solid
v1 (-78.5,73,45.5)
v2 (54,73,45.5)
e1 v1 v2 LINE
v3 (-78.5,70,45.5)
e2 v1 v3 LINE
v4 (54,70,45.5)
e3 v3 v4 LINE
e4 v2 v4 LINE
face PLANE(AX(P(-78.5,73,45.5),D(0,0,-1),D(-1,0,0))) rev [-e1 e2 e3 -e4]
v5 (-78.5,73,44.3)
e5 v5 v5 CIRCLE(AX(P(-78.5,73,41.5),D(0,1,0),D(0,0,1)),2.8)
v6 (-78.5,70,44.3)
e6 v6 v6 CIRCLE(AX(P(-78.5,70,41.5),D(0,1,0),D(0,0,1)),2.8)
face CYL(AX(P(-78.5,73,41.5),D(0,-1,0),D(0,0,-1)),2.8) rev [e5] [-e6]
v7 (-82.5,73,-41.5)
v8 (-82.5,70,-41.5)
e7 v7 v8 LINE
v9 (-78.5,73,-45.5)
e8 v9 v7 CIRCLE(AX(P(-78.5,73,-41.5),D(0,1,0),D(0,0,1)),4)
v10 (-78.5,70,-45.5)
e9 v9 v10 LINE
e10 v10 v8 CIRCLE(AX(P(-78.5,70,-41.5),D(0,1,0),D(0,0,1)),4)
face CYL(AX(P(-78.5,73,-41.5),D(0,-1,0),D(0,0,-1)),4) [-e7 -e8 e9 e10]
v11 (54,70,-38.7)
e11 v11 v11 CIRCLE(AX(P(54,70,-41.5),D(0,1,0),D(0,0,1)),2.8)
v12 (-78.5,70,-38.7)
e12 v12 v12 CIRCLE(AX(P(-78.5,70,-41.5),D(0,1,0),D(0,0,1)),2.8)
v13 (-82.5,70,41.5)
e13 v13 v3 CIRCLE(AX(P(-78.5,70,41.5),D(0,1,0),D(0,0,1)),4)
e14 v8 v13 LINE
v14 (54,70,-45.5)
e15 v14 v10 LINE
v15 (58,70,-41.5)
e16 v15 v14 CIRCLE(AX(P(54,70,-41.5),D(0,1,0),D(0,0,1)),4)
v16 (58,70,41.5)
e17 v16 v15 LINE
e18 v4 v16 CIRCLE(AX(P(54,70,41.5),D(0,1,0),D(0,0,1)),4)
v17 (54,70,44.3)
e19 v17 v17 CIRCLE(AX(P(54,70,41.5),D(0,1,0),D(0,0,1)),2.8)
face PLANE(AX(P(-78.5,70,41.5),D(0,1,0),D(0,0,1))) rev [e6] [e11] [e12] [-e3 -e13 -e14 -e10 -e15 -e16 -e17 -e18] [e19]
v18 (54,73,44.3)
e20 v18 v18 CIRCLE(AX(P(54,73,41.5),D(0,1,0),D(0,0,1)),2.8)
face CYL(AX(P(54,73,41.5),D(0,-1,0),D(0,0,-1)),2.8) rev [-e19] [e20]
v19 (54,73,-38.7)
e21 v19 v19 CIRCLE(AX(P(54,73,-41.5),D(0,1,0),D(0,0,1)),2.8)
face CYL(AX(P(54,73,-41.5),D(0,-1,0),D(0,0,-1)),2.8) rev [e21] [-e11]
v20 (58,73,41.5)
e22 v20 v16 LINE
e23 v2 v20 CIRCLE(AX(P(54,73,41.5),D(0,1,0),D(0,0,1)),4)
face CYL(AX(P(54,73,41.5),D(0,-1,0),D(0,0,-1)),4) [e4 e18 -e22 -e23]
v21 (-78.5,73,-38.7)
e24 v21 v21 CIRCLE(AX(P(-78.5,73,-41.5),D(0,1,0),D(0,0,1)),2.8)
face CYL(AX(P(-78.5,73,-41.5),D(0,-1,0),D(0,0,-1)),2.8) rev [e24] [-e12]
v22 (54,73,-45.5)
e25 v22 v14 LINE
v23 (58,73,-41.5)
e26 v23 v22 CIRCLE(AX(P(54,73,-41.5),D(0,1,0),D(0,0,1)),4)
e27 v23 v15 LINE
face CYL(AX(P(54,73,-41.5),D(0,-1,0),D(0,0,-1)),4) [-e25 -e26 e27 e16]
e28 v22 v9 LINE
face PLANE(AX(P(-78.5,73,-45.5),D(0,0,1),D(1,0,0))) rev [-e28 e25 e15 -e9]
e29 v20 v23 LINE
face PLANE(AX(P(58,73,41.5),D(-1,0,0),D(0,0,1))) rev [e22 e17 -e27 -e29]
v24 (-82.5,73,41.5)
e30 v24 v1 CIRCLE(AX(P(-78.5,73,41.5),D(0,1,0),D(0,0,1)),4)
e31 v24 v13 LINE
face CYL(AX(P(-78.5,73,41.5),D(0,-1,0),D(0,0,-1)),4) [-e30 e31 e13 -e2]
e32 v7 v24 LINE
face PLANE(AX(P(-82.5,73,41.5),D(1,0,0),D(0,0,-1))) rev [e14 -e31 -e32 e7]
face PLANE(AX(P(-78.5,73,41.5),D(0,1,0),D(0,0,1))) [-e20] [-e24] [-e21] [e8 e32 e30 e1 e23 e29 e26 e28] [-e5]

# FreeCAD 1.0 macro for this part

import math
import FreeCAD as App
import Part
import Sketcher
from FreeCAD import Vector
Q = App.Units.Quantity


def edges_at(feature, points):
    """Names of the edges that pass closest to the given points."""
    edges = feature.Shape.Edges
    near = lambda p: min(range(len(edges)), key=lambda i: edges[i].distToShape(Part.Vertex(*p))[0])
    return sorted({f"Edge{near(p) + 1}" for p in points})

doc = App.newDocument("Part")
body = doc.addObject("PartDesign::Body", "Body")

sketch1 = body.newObject("Sketcher::SketchObject", "Sketch")
sketch1.AttachmentSupport = (doc.getObject("XZ_Plane"), [""])
sketch1.MapMode = "FlatFace"
sketch1.addGeometry([
    Part.LineSegment(Vector(-80, -42, 0), Vector(-80, 42, 0)),
    Part.LineSegment(Vector(-80, 42, 0), Vector(55, 42, 0)),
    Part.LineSegment(Vector(55, 42, 0), Vector(55, -42, 0)),
    Part.LineSegment(Vector(55, -42, 0), Vector(-80, -42, 0)),
], False)
sketch1.addConstraint([
    Sketcher.Constraint("Coincident", 0, 2, 1, 1),
    Sketcher.Constraint("Coincident", 1, 2, 2, 1),
    Sketcher.Constraint("Coincident", 2, 2, 3, 1),
    Sketcher.Constraint("Coincident", 3, 2, 0, 1),
    Sketcher.Constraint("Vertical", 0),
    Sketcher.Constraint("Horizontal", 1),
    Sketcher.Constraint("Vertical", 2),
    Sketcher.Constraint("Horizontal", 3),
    Sketcher.Constraint("DistanceY", 0, 1, 0, 2, Q("85 mm")),
    Sketcher.Constraint("DistanceX", 1, 1, 1, 2, Q("134.5 mm")),
    Sketcher.Constraint("DistanceX", -1, 1, 1, 2, Q("55 mm")),
    Sketcher.Constraint("DistanceY", -1, 1, 0, 2, Q("42.5 mm")),
])
pad1 = body.newObject("PartDesign::Pad", "Pad")
pad1.Profile = sketch1
pad1.Length = 3
pad1.Reversed = True

sketch2 = body.newObject("Sketcher::SketchObject", "Sketch001")
sketch2.AttachmentSupport = (doc.getObject("XZ_Plane"), [""])
sketch2.MapMode = "FlatFace"
sketch2.addGeometry([
    Part.LineSegment(Vector(-82, -46, 0), Vector(-82, 46, 0)),
    Part.LineSegment(Vector(-82, 46, 0), Vector(58, 46, 0)),
    Part.LineSegment(Vector(58, 46, 0), Vector(58, -46, 0)),
    Part.LineSegment(Vector(58, -46, 0), Vector(-82, -46, 0)),
    Part.LineSegment(Vector(55, 42, 0), Vector(-80, 42, 0)),
    Part.LineSegment(Vector(-80, 42, 0), Vector(-80, -42, 0)),
    Part.LineSegment(Vector(-80, -42, 0), Vector(55, -42, 0)),
    Part.LineSegment(Vector(55, -42, 0), Vector(55, 42, 0)),
], False)
sketch2.addConstraint([
    Sketcher.Constraint("Coincident", 0, 2, 1, 1),
    Sketcher.Constraint("Coincident", 1, 2, 2, 1),
    Sketcher.Constraint("Coincident", 2, 2, 3, 1),
    Sketcher.Constraint("Coincident", 3, 2, 0, 1),
    Sketcher.Constraint("Coincident", 4, 2, 5, 1),
    Sketcher.Constraint("Coincident", 5, 2, 6, 1),
    Sketcher.Constraint("Coincident", 6, 2, 7, 1),
    Sketcher.Constraint("Coincident", 7, 2, 4, 1),
    Sketcher.Constraint("Vertical", 0),
    Sketcher.Constraint("Horizontal", 1),
    Sketcher.Constraint("Vertical", 2),
    Sketcher.Constraint("Horizontal", 3),
    Sketcher.Constraint("Horizontal", 4),
    Sketcher.Constraint("Vertical", 5),
    Sketcher.Constraint("Horizontal", 6),
    Sketcher.Constraint("Vertical", 7),
    Sketcher.Constraint("DistanceY", 0, 1, 0, 2, Q("91 mm")),
    Sketcher.Constraint("DistanceY", 5, 2, 5, 1, Q("85 mm")),
    Sketcher.Constraint("DistanceX", 1, 1, 1, 2, Q("140.5 mm")),
    Sketcher.Constraint("DistanceX", 4, 2, 4, 1, Q("134.5 mm")),
    Sketcher.Constraint("DistanceX", -1, 1, 1, 2, Q("58 mm")),
    Sketcher.Constraint("DistanceX", -1, 1, 6, 2, Q("55 mm")),
    Sketcher.Constraint("DistanceY", 4, 2, 0, 2, Q("3 mm")),
    Sketcher.Constraint("DistanceY", -1, 1, 0, 2, Q("45.5 mm")),
])
pad2 = body.newObject("PartDesign::Pad", "Pad001")
pad2.Profile = sketch2
pad2.Length = 70
pad2.Reversed = True

sketch3 = body.newObject("Sketcher::SketchObject", "Sketch002")
sketch3.AttachmentSupport = (doc.getObject("XZ_Plane"), [""])
sketch3.MapMode = "FlatFace"
sketch3.AttachmentOffset = App.Placement(Vector(0, 0, -3), App.Rotation())
sketch3.addGeometry([
    Part.LineSegment(Vector(-58, 26.5, 0), Vector(-58, -42.5, 0)),
    Part.LineSegment(Vector(-58, -42.5, 0), Vector(-61, -42.5, 0)),
    Part.LineSegment(Vector(-61, -42.5, 0), Vector(-61, 23.5, 0)),
    Part.LineSegment(Vector(-61, 23.5, 0), Vector(-79.5, 23.5, 0)),
    Part.LineSegment(Vector(-79.5, 23.5, 0), Vector(-79.5, 26.5, 0)),
    Part.LineSegment(Vector(-79.5, 26.5, 0), Vector(-58, 26.5, 0)),
], False)
sketch3.addConstraint([
    Sketcher.Constraint("Coincident", 0, 2, 1, 1),
    Sketcher.Constraint("Coincident", 1, 2, 2, 1),
    Sketcher.Constraint("Coincident", 2, 2, 3, 1),
    Sketcher.Constraint("Coincident", 3, 2, 4, 1),
    Sketcher.Constraint("Coincident", 4, 2, 5, 1),
    Sketcher.Constraint("Coincident", 5, 2, 0, 1),
    Sketcher.Constraint("Vertical", 0),
    Sketcher.Constraint("Horizontal", 1),
    Sketcher.Constraint("Vertical", 2),
    Sketcher.Constraint("Horizontal", 3),
    Sketcher.Constraint("Vertical", 4),
    Sketcher.Constraint("Horizontal", 5),
    Sketcher.Constraint("Equal", 1, 4),
    Sketcher.Constraint("DistanceX", 1, 2, 1, 1, Q("3 mm")),
    Sketcher.Constraint("DistanceY", 0, 2, 0, 1, Q("69 mm")),
    Sketcher.Constraint("DistanceX", 3, 2, 3, 1, Q("18.5 mm")),
    Sketcher.Constraint("DistanceX", 0, 2, -1, 1, Q("58 mm")),
    Sketcher.Constraint("DistanceY", 0, 2, -1, 1, Q("42.5 mm")),
])
pad3 = body.newObject("PartDesign::Pad", "Pad002")
pad3.Profile = sketch3
pad3.Length = 30
pad3.Reversed = True
body2 = doc.addObject("PartDesign::Body", "Body001")

sketch4 = body2.newObject("Sketcher::SketchObject", "Sketch003")
sketch4.AttachmentSupport = (doc.getObject("XZ_Plane001"), [""])
sketch4.MapMode = "FlatFace"
sketch4.AttachmentOffset = App.Placement(Vector(0, 0, -8), App.Rotation())
sketch4.addGeometry([
    Part.LineSegment(Vector(-50, -40, 0), Vector(-50, 40, 0)),
    Part.LineSegment(Vector(-50, 40, 0), Vector(50, 40, 0)),
    Part.LineSegment(Vector(50, 40, 0), Vector(50, -40, 0)),
    Part.LineSegment(Vector(50, -40, 0), Vector(-50, -40, 0)),
], False)
sketch4.addConstraint([
    Sketcher.Constraint("Coincident", 0, 2, 1, 1),
    Sketcher.Constraint("Coincident", 1, 2, 2, 1),
    Sketcher.Constraint("Coincident", 2, 2, 3, 1),
    Sketcher.Constraint("Coincident", 3, 2, 0, 1),
    Sketcher.Constraint("Vertical", 0),
    Sketcher.Constraint("Horizontal", 1),
    Sketcher.Constraint("Vertical", 2),
    Sketcher.Constraint("Horizontal", 3),
    Sketcher.Constraint("Symmetric", 0, 2, 2, 2, -1, 1),
    Sketcher.Constraint("DistanceX", 1, 1, 1, 2, Q("100 mm")),
    Sketcher.Constraint("DistanceY", 0, 1, 0, 2, Q("80 mm")),
])
pad4 = body2.newObject("PartDesign::Pad", "Pad003")
pad4.Profile = sketch4
pad4.Length = 5
pad4.Reversed = True
body.AllowCompound = True
doc.recompute()

boolean = body.newObject("PartDesign::Boolean", "Boolean")
boolean.Type = "Fuse"
boolean.addObjects([body2])

sketch5 = body.newObject("Sketcher::SketchObject", "Sketch004")
sketch5.AttachmentSupport = (doc.getObject("XZ_Plane"), [""])
sketch5.MapMode = "FlatFace"
sketch5.AttachmentOffset = App.Placement(Vector(0, 0, -3), App.Rotation())
sketch5.addGeometry([
    Part.Circle(Vector(-45, 35, 0), Vector(0, 0, 1), 3),
    Part.Circle(Vector(-45, 35, 0), Vector(0, 0, 1), 1),
], False)
sketch5.addConstraint([
    Sketcher.Constraint("Coincident", 1, 3, 0, 3),
    Sketcher.Constraint("Diameter", 0, Q("6 mm")),
    Sketcher.Constraint("Diameter", 1, Q("2 mm")),
    Sketcher.Constraint("DistanceX", 0, 3, -1, 1, Q("45 mm")),
    Sketcher.Constraint("DistanceY", -1, 1, 0, 3, Q("35 mm")),
])
pad5 = body.newObject("PartDesign::Pad", "Pad004")
pad5.Profile = sketch5
pad5.Length = 10
pad5.Reversed = True

sketch6 = body.newObject("Sketcher::SketchObject", "Sketch005")
sketch6.AttachmentSupport = (doc.getObject("XZ_Plane"), [""])
sketch6.MapMode = "FlatFace"
sketch6.AttachmentOffset = App.Placement(Vector(0, 0, -13), App.Rotation())
sketch6.addGeometry([
    Part.LineSegment(Vector(-50, -40, 0), Vector(-50, 40, 0)),
    Part.LineSegment(Vector(-50, 40, 0), Vector(50, 40, 0)),
    Part.LineSegment(Vector(50, 40, 0), Vector(50, -40, 0)),
    Part.LineSegment(Vector(50, -40, 0), Vector(-50, -40, 0)),
], False)
sketch6.addConstraint([
    Sketcher.Constraint("Coincident", 0, 2, 1, 1),
    Sketcher.Constraint("Coincident", 1, 2, 2, 1),
    Sketcher.Constraint("Coincident", 2, 2, 3, 1),
    Sketcher.Constraint("Coincident", 3, 2, 0, 1),
    Sketcher.Constraint("Vertical", 0),
    Sketcher.Constraint("Horizontal", 1),
    Sketcher.Constraint("Vertical", 2),
    Sketcher.Constraint("Horizontal", 3),
    Sketcher.Constraint("Symmetric", 0, 2, 2, 2, -1, 1),
    Sketcher.Constraint("DistanceX", 1, 1, 1, 2, Q("100 mm")),
    Sketcher.Constraint("DistanceY", 0, 1, 0, 2, Q("80 mm")),
])
pocket1 = body.newObject("PartDesign::Pocket", "Pocket")
pocket1.Profile = sketch6
pocket1.Length = 10
pocket1.Reversed = True

sketch7 = body.newObject("Sketcher::SketchObject", "Sketch006")
sketch7.AttachmentSupport = (doc.getObject("XZ_Plane"), [""])
sketch7.MapMode = "FlatFace"
sketch7.AttachmentOffset = App.Placement(Vector(0, 0, -3), App.Rotation())
sketch7.addGeometry([
    Part.Circle(Vector(-45, 35, 0), Vector(0, 0, 1), 3),
    Part.Circle(Vector(-45, 35, 0), Vector(0, 0, 1), 1),
], False)
sketch7.addConstraint([
    Sketcher.Constraint("Coincident", 1, 3, 0, 3),
    Sketcher.Constraint("Diameter", 0, Q("6 mm")),
    Sketcher.Constraint("Diameter", 1, Q("2 mm")),
    Sketcher.Constraint("DistanceX", 0, 3, -1, 1, Q("45 mm")),
    Sketcher.Constraint("DistanceY", -1, 1, 0, 3, Q("35 mm")),
])
pad6 = body.newObject("PartDesign::Pad", "Pad005")
pad6.Profile = sketch7
pad6.Length = 8
pad6.Reversed = True
doc.recompute()

mirrored = body.newObject("PartDesign::Mirrored", "Mirrored")
mirrored.Originals = [pad6]
mirrored.MirrorPlane = (doc.getObject("XY_Plane"), [""])
body.Tip = mirrored
doc.recompute()

mirrored2 = body.newObject("PartDesign::Mirrored", "Mirrored001")
mirrored2.Originals = [pad6]
mirrored2.MirrorPlane = (doc.getObject("YZ_Plane"), [""])
body.Tip = mirrored2

sketch8 = body.newObject("Sketcher::SketchObject", "Sketch007")
sketch8.AttachmentSupport = (doc.getObject("XZ_Plane"), [""])
sketch8.MapMode = "FlatFace"
sketch8.AttachmentOffset = App.Placement(Vector(0, 0, -3), App.Rotation())
sketch8.addGeometry([
    Part.Circle(Vector(45, -35, 0), Vector(0, 0, 1), 3),
    Part.Circle(Vector(45, -35, 0), Vector(0, 0, 1), 1),
], False)
sketch8.addConstraint([
    Sketcher.Constraint("Coincident", 1, 3, 0, 3),
    Sketcher.Constraint("Diameter", 0, Q("6 mm")),
    Sketcher.Constraint("Diameter", 1, Q("2 mm")),
    Sketcher.Constraint("DistanceX", -1, 1, 0, 3, Q("45 mm")),
    Sketcher.Constraint("DistanceY", 0, 3, -1, 1, Q("35 mm")),
])
pad7 = body.newObject("PartDesign::Pad", "Pad006")
pad7.Profile = sketch8
pad7.Length = 8
pad7.Reversed = True

sketch9 = body.newObject("Sketcher::SketchObject", "Sketch008")
sketch9.AttachmentSupport = (doc.getObject("XY_Plane"), [""])
sketch9.MapMode = "FlatFace"
sketch9.AttachmentOffset = App.Placement(Vector(0, 0, 45.5), App.Rotation())
sketch9.addGeometry([
    Part.Circle(Vector(23, 40.9, 0), Vector(0, 0, 1), 26.1),
    Part.LineSegment(Vector(-62.1, 63.1, 0), Vector(-62.1, 36.9, 0)),
    Part.LineSegment(Vector(-62.1, 36.9, 0), Vector(-32.9, 36.9, 0)),
    Part.LineSegment(Vector(-32.9, 36.9, 0), Vector(-32.9, 63.1, 0)),
    Part.LineSegment(Vector(-32.9, 63.1, 0), Vector(-62.1, 63.1, 0)),
    Part.Circle(Vector(1.8, 62.1, 0), Vector(0, 0, 1), 1),
    Part.Circle(Vector(44.2, 62.1, 0), Vector(0, 0, 1), 1),
    Part.Circle(Vector(44.2, 19.6, 0), Vector(0, 0, 1), 1),
    Part.Circle(Vector(1.8, 19.6, 0), Vector(0, 0, 1), 1),
    Part.Circle(Vector(-58.8, 21.9, 0), Vector(0, 0, 1), 3.4),
    Part.Circle(Vector(-40.8, 21.9, 0), Vector(0, 0, 1), 7.9),
], False)
sketch9.addConstraint([
    Sketcher.Constraint("Coincident", 1, 2, 2, 1),
    Sketcher.Constraint("Coincident", 2, 2, 3, 1),
    Sketcher.Constraint("Coincident", 3, 2, 4, 1),
    Sketcher.Constraint("Coincident", 4, 2, 1, 1),
    Sketcher.Constraint("Vertical", 1),
    Sketcher.Constraint("Horizontal", 2),
    Sketcher.Constraint("Vertical", 3),
    Sketcher.Constraint("Horizontal", 4),
    Sketcher.Constraint("Equal", 5, 6),
    Sketcher.Constraint("Equal", 6, 7),
    Sketcher.Constraint("Equal", 7, 8),
    Sketcher.Constraint("Horizontal", 5, 3, 6, 3),
    Sketcher.Constraint("Horizontal", 7, 3, 8, 3),
    Sketcher.Constraint("Horizontal", 9, 3, 10, 3),
    Sketcher.Constraint("Vertical", 6, 3, 7, 3),
    Sketcher.Constraint("Vertical", 5, 3, 8, 3),
    Sketcher.Constraint("Diameter", 5, Q("2 mm")),
    Sketcher.Constraint("Diameter", 0, Q("52.3 mm")),
    Sketcher.Constraint("Diameter", 9, Q("6.8 mm")),
    Sketcher.Constraint("Diameter", 10, Q("15.8 mm")),
    Sketcher.Constraint("DistanceX", 2, 1, 2, 2, Q("29.3 mm")),
    Sketcher.Constraint("DistanceY", 1, 2, 1, 1, Q("26.2 mm")),
    Sketcher.Constraint("DistanceX", -1, 1, 0, 3, Q("23 mm")),
    Sketcher.Constraint("DistanceX", 9, 3, 10, 3, Q("18 mm")),
    Sketcher.Constraint("DistanceY", 9, 3, 1, 2, Q("15 mm")),
    Sketcher.Constraint("DistanceY", -1, 1, 9, 3, Q("21.9 mm")),
    Sketcher.Constraint("DistanceX", 1, 2, 9, 3, Q("3.4 mm")),
    Sketcher.Constraint("DistanceY", -1, 1, 0, 3, Q("40.85 mm")),
    Sketcher.Constraint("DistanceX", 9, 3, -1, 1, Q("58.75 mm")),
    Sketcher.Constraint("DistanceX", -1, 1, 5, 3, Q("1.786797 mm")),
    Sketcher.Constraint("DistanceY", -1, 1, 5, 3, Q("62.063203 mm")),
    Sketcher.Constraint("DistanceX", -1, 1, 6, 3, Q("44.213203 mm")),
    Sketcher.Constraint("DistanceY", -1, 1, 7, 3, Q("19.636797 mm")),
])
pocket2 = body.newObject("PartDesign::Pocket", "Pocket001")
pocket2.Profile = sketch9
pocket2.Length = 3

sketch10 = body.newObject("Sketcher::SketchObject", "Sketch009")
sketch10.AttachmentSupport = (doc.getObject("YZ_Plane"), [""])
sketch10.MapMode = "FlatFace"
sketch10.AttachmentOffset = App.Placement(Vector(0, 0, 58), App.Rotation())
sketch10.addGeometry([
    Part.Circle(Vector(55, -15.5, 0), Vector(0, 0, 1), 3),
    Part.Circle(Vector(55, -30.5, 0), Vector(0, 0, 1), 5.9),
], False)
sketch10.addConstraint([
    Sketcher.Constraint("Vertical", 0, 3, 1, 3),
    Sketcher.Constraint("Diameter", 0, Q("5.9 mm")),
    Sketcher.Constraint("Diameter", 1, Q("11.8 mm")),
    Sketcher.Constraint("DistanceX", -1, 1, 0, 3, Q("55 mm")),
    Sketcher.Constraint("DistanceY", 1, 3, 0, 3, Q("15 mm")),
    Sketcher.Constraint("DistanceY", 0, 3, -1, 1, Q("15.5 mm")),
])
pocket3 = body.newObject("PartDesign::Pocket", "Pocket002")
pocket3.Profile = sketch10
pocket3.Length = 3

sketch11 = body.newObject("Sketcher::SketchObject", "Sketch010")
sketch11.AttachmentSupport = (doc.getObject("XZ_Plane"), [""])
sketch11.MapMode = "FlatFace"
sketch11.AttachmentOffset = App.Placement(Vector(0, 0, -70), App.Rotation())
sketch11.addGeometry([
    Part.LineSegment(Vector(-74, -42, 0), Vector(-80, -42, 0)),
    Part.LineSegment(Vector(-80, -42, 0), Vector(-80, -38, 0)),
    Part.LineSegment(Vector(-80, -38, 0), Vector(-74, -42, 0)),
    Part.LineSegment(Vector(55, -38, 0), Vector(55, -42, 0)),
    Part.LineSegment(Vector(55, -42, 0), Vector(50, -42, 0)),
    Part.LineSegment(Vector(50, -42, 0), Vector(55, -38, 0)),
    Part.LineSegment(Vector(50, 42, 0), Vector(55, 42, 0)),
    Part.LineSegment(Vector(55, 42, 0), Vector(55, 38, 0)),
    Part.LineSegment(Vector(55, 38, 0), Vector(50, 42, 0)),
    Part.LineSegment(Vector(-80, 38, 0), Vector(-80, 42, 0)),
    Part.LineSegment(Vector(-80, 42, 0), Vector(-74, 42, 0)),
    Part.LineSegment(Vector(-74, 42, 0), Vector(-80, 38, 0)),
], False)
sketch11.addConstraint([
    Sketcher.Constraint("Coincident", 0, 2, 1, 1),
    Sketcher.Constraint("Coincident", 1, 2, 2, 1),
    Sketcher.Constraint("Coincident", 2, 2, 0, 1),
    Sketcher.Constraint("Coincident", 3, 2, 4, 1),
    Sketcher.Constraint("Coincident", 4, 2, 5, 1),
    Sketcher.Constraint("Coincident", 5, 2, 3, 1),
    Sketcher.Constraint("Coincident", 6, 2, 7, 1),
    Sketcher.Constraint("Coincident", 7, 2, 8, 1),
    Sketcher.Constraint("Coincident", 8, 2, 6, 1),
    Sketcher.Constraint("Coincident", 9, 2, 10, 1),
    Sketcher.Constraint("Coincident", 10, 2, 11, 1),
    Sketcher.Constraint("Coincident", 11, 2, 9, 1),
    Sketcher.Constraint("Horizontal", 0),
    Sketcher.Constraint("Vertical", 1),
    Sketcher.Constraint("Vertical", 3),
    Sketcher.Constraint("Horizontal", 4),
    Sketcher.Constraint("Horizontal", 6),
    Sketcher.Constraint("Vertical", 7),
    Sketcher.Constraint("Vertical", 9),
    Sketcher.Constraint("Horizontal", 10),
    Sketcher.Constraint("Symmetric", 3, 2, 6, 2, -1),
    Sketcher.Constraint("Symmetric", 0, 2, 9, 2, -1),
    Sketcher.Constraint("Perpendicular", 2, 5),
    Sketcher.Constraint("Perpendicular", 5, 8),
    Sketcher.Constraint("Perpendicular", 8, 11),
    Sketcher.Constraint("Horizontal", 2, 2, 3, 2),
    Sketcher.Constraint("Horizontal", 1, 2, 5, 2),
    Sketcher.Constraint("Horizontal", 7, 2, 11, 2),
    Sketcher.Constraint("Vertical", 4, 2, 8, 2),
    Sketcher.Constraint("Vertical", 2, 2, 10, 2),
    Sketcher.Constraint("DistanceX", 0, 2, 0, 1, Q("5 mm")),
    Sketcher.Constraint("DistanceX", -1, 1, 3, 2, Q("55 mm")),
    Sketcher.Constraint("DistanceY", 5, 2, 6, 2, Q("80 mm")),
    Sketcher.Constraint("DistanceX", 0, 2, -1, 1, Q("79.5 mm")),
])
pad8 = body.newObject("PartDesign::Pad", "Pad007")
pad8.Profile = sketch11
pad8.Length = 7
doc.recompute()

fillet = body.newObject("PartDesign::Fillet", "Fillet")
fillet.Base = (pad8, edges_at(pad8, [
    (58, 35, 45.5),
    (58, 35, -45.5),
    (-82.5, 35, -45.5),
    (-82.5, 35, 45.5),
]))
fillet.Radius = 4

sketch12 = body.newObject("Sketcher::SketchObject", "Sketch011")
sketch12.AttachmentSupport = (doc.getObject("XZ_Plane"), [""])
sketch12.MapMode = "FlatFace"
sketch12.AttachmentOffset = App.Placement(Vector(0, 0, -70), App.Rotation())
sketch12.addGeometry([
    Part.ArcOfCircle(Part.Circle(Vector(54.7, -42.2, 0), Vector(0, 0, 1), 1), math.radians(135), math.radians(315)),
    Part.ArcOfCircle(Part.Circle(Vector(54.7, -42.2, 0), Vector(0, 0, 1), 1), math.radians(0), math.radians(135)),
    Part.ArcOfCircle(Part.Circle(Vector(54.7, -42.2, 0), Vector(0, 0, 1), 1), math.radians(-45), math.radians(0)),
    Part.ArcOfCircle(Part.Circle(Vector(54.7, 42.2, 0), Vector(0, 0, 1), 1), math.radians(45), math.radians(225)),
    Part.ArcOfCircle(Part.Circle(Vector(54.7, 42.2, 0), Vector(0, 0, 1), 1), math.radians(0), math.radians(45)),
    Part.ArcOfCircle(Part.Circle(Vector(54.7, 42.2, 0), Vector(0, 0, 1), 1), math.radians(-135), math.radians(0)),
    Part.ArcOfCircle(Part.Circle(Vector(-79.2, 42.2, 0), Vector(0, 0, 1), 1), math.radians(-45), math.radians(0)),
    Part.ArcOfCircle(Part.Circle(Vector(-79.2, 42.2, 0), Vector(0, 0, 1), 1), math.radians(135), math.radians(315)),
    Part.ArcOfCircle(Part.Circle(Vector(-79.2, 42.2, 0), Vector(0, 0, 1), 1), math.radians(0), math.radians(135)),
    Part.ArcOfCircle(Part.Circle(Vector(-79.2, -42.2, 0), Vector(0, 0, 1), 1), math.radians(-135), math.radians(0)),
    Part.ArcOfCircle(Part.Circle(Vector(-79.2, -42.2, 0), Vector(0, 0, 1), 1), math.radians(45), math.radians(225)),
    Part.ArcOfCircle(Part.Circle(Vector(-79.2, -42.2, 0), Vector(0, 0, 1), 1), math.radians(0), math.radians(45)),
], False)
sketch12.addConstraint([
    Sketcher.Constraint("Tangent", 0, 1, 1, 2),
    Sketcher.Constraint("Tangent", 1, 1, 2, 2),
    Sketcher.Constraint("Tangent", 2, 1, 0, 2),
    Sketcher.Constraint("Tangent", 3, 1, 4, 2),
    Sketcher.Constraint("Tangent", 4, 1, 5, 2),
    Sketcher.Constraint("Tangent", 5, 1, 3, 2),
    Sketcher.Constraint("Tangent", 6, 1, 7, 2),
    Sketcher.Constraint("Tangent", 7, 1, 8, 2),
    Sketcher.Constraint("Tangent", 8, 1, 6, 2),
    Sketcher.Constraint("Tangent", 9, 1, 10, 2),
    Sketcher.Constraint("Tangent", 10, 1, 11, 2),
    Sketcher.Constraint("Tangent", 11, 1, 9, 2),
    Sketcher.Constraint("Equal", 2, 3),
    Sketcher.Constraint("Equal", 5, 6),
    Sketcher.Constraint("Equal", 8, 9),
    Sketcher.Constraint("Symmetric", 0, 3, 3, 3, -1),
    Sketcher.Constraint("Symmetric", 6, 3, 9, 3, -1),
    Sketcher.Constraint("Horizontal", 5, 3, 6, 3),
    Sketcher.Constraint("Horizontal", 11, 3, 1, 1),
    Sketcher.Constraint("Horizontal", 8, 3, 4, 1),
    Sketcher.Constraint("Horizontal", 5, 1, 6, 1),
    Sketcher.Constraint("Horizontal", 3, 1, 7, 1),
    Sketcher.Constraint("Horizontal", 4, 1, 8, 1),
    Sketcher.Constraint("Horizontal", 2, 1, 9, 1),
    Sketcher.Constraint("Horizontal", 0, 1, 10, 1),
    Sketcher.Constraint("Horizontal", 1, 1, 11, 1),
    Sketcher.Constraint("Vertical", 2, 1, 3, 1),
    Sketcher.Constraint("Vertical", 0, 1, 5, 1),
    Sketcher.Constraint("Radius", 0, Q("1 mm")),
    Sketcher.Constraint("DistanceX", -1, 1, 2, 1, Q("55.37132 mm")),
    Sketcher.Constraint("DistanceY", 2, 1, -1, 1, Q("42.87132 mm")),
    Sketcher.Constraint("DistanceX", 7, 1, -1, 1, Q("79.87132 mm")),
    Sketcher.Constraint("DistanceY", 0, 1, 3, 3, Q("83.62132 mm")),
    Sketcher.Constraint("DistanceX", -1, 1, 0, 3, Q("54.664214 mm")),
])
pocket4 = body.newObject("PartDesign::Pocket", "Pocket003")
pocket4.Profile = sketch12
pocket4.Length = 5
pocket4.Reversed = True
body3 = doc.addObject("PartDesign::Body", "Body002")

sketch13 = body3.newObject("Sketcher::SketchObject", "Sketch012")
sketch13.AttachmentSupport = (doc.getObject("XZ_Plane002"), [""])
sketch13.MapMode = "FlatFace"
sketch13.AttachmentOffset = App.Placement(Vector(0, 0, -70), App.Rotation())
sketch13.addGeometry([
    Part.LineSegment(Vector(-78.5, 45.5, 0), Vector(54, 45.5, 0)),
    Part.ArcOfCircle(Part.Circle(Vector(54, 41.5, 0), Vector(0, 0, 1), 4), math.radians(0), math.radians(90)),
    Part.LineSegment(Vector(58, 41.5, 0), Vector(58, -41.5, 0)),
    Part.ArcOfCircle(Part.Circle(Vector(54, -41.5, 0), Vector(0, 0, 1), 4), math.radians(-90), math.radians(0)),
    Part.LineSegment(Vector(54, -45.5, 0), Vector(-78.5, -45.5, 0)),
    Part.ArcOfCircle(Part.Circle(Vector(-78.5, -41.5, 0), Vector(0, 0, 1), 4), math.radians(180), math.radians(270)),
    Part.LineSegment(Vector(-82.5, -41.5, 0), Vector(-82.5, 41.5, 0)),
    Part.ArcOfCircle(Part.Circle(Vector(-78.5, 41.5, 0), Vector(0, 0, 1), 4), math.radians(90), math.radians(180)),
    Part.Circle(Vector(-78.5, 41.5, 0), Vector(0, 0, 1), 2.8),
    Part.Circle(Vector(54, 41.5, 0), Vector(0, 0, 1), 2.8),
    Part.Circle(Vector(-78.5, -41.5, 0), Vector(0, 0, 1), 2.8),
    Part.Circle(Vector(54, -41.5, 0), Vector(0, 0, 1), 2.8),
], False)
sketch13.addConstraint([
    Sketcher.Constraint("Tangent", 0, 2, 1, 2),
    Sketcher.Constraint("Tangent", 1, 1, 2, 1),
    Sketcher.Constraint("Tangent", 2, 2, 3, 2),
    Sketcher.Constraint("Tangent", 3, 1, 4, 1),
    Sketcher.Constraint("Tangent", 4, 2, 5, 2),
    Sketcher.Constraint("Tangent", 5, 1, 6, 1),
    Sketcher.Constraint("Tangent", 6, 2, 7, 2),
    Sketcher.Constraint("Tangent", 7, 1, 0, 1),
    Sketcher.Constraint("Horizontal", 0),
    Sketcher.Constraint("Vertical", 2),
    Sketcher.Constraint("Horizontal", 4),
    Sketcher.Constraint("Vertical", 6),
    Sketcher.Constraint("Coincident", 8, 3, 7, 3),
    Sketcher.Constraint("Coincident", 9, 3, 1, 3),
    Sketcher.Constraint("Coincident", 10, 3, 5, 3),
    Sketcher.Constraint("Coincident", 11, 3, 3, 3),
    Sketcher.Constraint("Equal", 1, 3),
    Sketcher.Constraint("Equal", 3, 5),
    Sketcher.Constraint("Equal", 5, 7),
    Sketcher.Constraint("Equal", 8, 9),
    Sketcher.Constraint("Equal", 9, 10),
    Sketcher.Constraint("Equal", 10, 11),
    Sketcher.Constraint("Radius", 1, Q("4 mm")),
    Sketcher.Constraint("Diameter", 8, Q("5.6 mm")),
    Sketcher.Constraint("DistanceY", 2, 2, 2, 1, Q("83 mm")),
    Sketcher.Constraint("DistanceX", 0, 1, 0, 2, Q("132.5 mm")),
    Sketcher.Constraint("DistanceX", -1, 1, 1, 3, Q("54 mm")),
    Sketcher.Constraint("DistanceY", -1, 1, 1, 3, Q("41.5 mm")),
])
pad9 = body3.newObject("PartDesign::Pad", "Pad008")
pad9.Profile = sketch13
pad9.Length = 3
pad9.Reversed = True
body.Visibility = False

doc.recompute()
